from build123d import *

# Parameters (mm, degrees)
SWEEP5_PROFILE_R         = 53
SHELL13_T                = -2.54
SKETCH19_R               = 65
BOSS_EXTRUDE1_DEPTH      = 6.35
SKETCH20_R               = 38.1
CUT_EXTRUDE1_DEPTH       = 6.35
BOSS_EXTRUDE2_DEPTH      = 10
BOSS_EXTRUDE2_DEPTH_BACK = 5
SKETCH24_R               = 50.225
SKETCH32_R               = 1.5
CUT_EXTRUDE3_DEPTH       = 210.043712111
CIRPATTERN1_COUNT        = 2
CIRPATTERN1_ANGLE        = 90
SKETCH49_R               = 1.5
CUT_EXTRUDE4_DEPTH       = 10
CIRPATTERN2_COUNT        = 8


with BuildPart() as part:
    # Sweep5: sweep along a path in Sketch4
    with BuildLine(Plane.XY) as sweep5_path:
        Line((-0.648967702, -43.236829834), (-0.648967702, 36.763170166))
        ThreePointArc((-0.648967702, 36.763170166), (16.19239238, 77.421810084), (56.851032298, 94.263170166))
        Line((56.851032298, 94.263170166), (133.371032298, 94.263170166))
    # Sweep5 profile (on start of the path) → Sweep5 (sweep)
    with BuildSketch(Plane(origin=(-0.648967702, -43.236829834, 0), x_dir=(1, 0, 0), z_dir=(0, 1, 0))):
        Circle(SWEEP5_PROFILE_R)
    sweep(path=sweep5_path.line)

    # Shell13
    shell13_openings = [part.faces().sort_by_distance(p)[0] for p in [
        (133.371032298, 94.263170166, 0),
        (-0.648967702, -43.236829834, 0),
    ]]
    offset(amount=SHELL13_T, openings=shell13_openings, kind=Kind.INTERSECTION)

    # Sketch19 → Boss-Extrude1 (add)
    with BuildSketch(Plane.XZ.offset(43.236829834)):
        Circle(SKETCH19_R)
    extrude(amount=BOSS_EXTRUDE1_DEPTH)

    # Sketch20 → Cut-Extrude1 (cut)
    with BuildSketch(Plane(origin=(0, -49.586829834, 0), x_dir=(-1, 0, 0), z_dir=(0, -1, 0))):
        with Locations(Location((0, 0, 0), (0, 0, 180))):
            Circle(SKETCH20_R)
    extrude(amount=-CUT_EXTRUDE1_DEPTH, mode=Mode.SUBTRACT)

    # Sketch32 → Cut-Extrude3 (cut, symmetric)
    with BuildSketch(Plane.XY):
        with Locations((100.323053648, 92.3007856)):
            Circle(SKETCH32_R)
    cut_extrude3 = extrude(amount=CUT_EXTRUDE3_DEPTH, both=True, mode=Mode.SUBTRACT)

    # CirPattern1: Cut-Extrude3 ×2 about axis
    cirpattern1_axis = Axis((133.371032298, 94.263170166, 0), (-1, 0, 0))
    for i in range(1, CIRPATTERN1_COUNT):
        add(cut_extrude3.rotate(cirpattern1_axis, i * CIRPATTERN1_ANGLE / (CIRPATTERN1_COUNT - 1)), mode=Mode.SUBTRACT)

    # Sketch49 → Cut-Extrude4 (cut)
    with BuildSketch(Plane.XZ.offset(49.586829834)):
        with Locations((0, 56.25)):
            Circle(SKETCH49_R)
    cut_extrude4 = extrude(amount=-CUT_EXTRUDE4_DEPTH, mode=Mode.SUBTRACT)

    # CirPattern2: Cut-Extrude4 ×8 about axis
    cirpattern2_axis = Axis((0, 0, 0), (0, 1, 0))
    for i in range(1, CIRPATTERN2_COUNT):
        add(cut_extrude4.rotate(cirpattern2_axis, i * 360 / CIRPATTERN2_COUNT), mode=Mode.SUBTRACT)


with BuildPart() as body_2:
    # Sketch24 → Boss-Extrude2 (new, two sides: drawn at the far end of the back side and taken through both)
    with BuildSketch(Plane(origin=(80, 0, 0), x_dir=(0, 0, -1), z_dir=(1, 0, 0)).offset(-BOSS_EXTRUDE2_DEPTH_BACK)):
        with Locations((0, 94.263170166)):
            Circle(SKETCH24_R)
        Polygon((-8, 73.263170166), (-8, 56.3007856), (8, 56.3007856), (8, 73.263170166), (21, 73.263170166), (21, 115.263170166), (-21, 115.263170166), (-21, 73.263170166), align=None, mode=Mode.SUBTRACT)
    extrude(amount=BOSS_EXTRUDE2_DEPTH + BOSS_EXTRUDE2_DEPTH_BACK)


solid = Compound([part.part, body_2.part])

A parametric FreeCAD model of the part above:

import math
import FreeCAD as App
import Part
import Sketcher
from FreeCAD import Vector
Q = App.Units.Quantity


def faces_at(feature, points):
    """Names of the faces that lie closest to the given points."""
    faces = feature.Shape.Faces
    near = lambda p: min(range(len(faces)), key=lambda i: faces[i].distToShape(Part.Vertex(*p))[0])
    return sorted({f"Face{near(p) + 1}" for p in points})

doc = App.newDocument("Part")
params = doc.addObject("Spreadsheet::Sheet", "Params")
for row, (alias, value) in enumerate([
    ("sketch1_diameter", "106 mm"),
    ("sketch2_radius", "57.5 mm"),
    ("sketch2_height", "80 mm"),
    ("sketch2_width", "76.52 mm"),
    ("thickness_wall", "2.54 mm"),
    ("sketch3_diameter", "130 mm"),
    ("pad1_length", "6.35 mm"),
    ("sketch4_diameter", "76.2 mm"),
    ("pocket1_length", "6.35 mm"),
    ("sketch5_diameter", "3 mm"),
    ("pocket2_length", "420.087424 mm"),
    ("sketch6_diameter", "3 mm"),
    ("pocket3_length", "10 mm"),
    ("sketch7_diameter", "100.45 mm"),
    ("sketch7_width", "42 mm"),
    ("sketch7_height", "13 mm"),
    ("pad2_length", "10 mm"),
    ("pad2_length2", "5 mm"),
], start=1):
    params.set(f"A{row}", alias)
    params.set(f"B{row}", "=" + value)
    params.setAlias(f"B{row}", alias)

body = doc.addObject("PartDesign::Body", "Body")

# Sketch on XZ plane
sketch1 = body.newObject("Sketcher::SketchObject", "Sketch")
sketch1.AttachmentSupport = (doc.getObject("XZ_Plane"), [""])
sketch1.MapMode = "FlatFace"
sketch1.AttachmentOffset = App.Placement(Vector(0, 0, 43.23683), App.Rotation())
sketch1.addGeometry(Part.Circle(Vector(-1, 0, 0), Vector(0, 0, 1), 53), False)
sketch1.addConstraint(Sketcher.Constraint("PointOnObject", 0, 3, -1))
sketch1.addConstraint(Sketcher.Constraint("Diameter", 0, Q("106 mm")))
sketch1.addConstraint(Sketcher.Constraint("DistanceX", 0, 3, -1, 1, Q("0.648968 mm")))
sketch1.setExpression("Constraints[1]", "Params.sketch1_diameter")

# Sketch on XY plane
sketch2 = body.newObject("Sketcher::SketchObject", "Sketch001")
sketch2.AttachmentSupport = (doc.getObject("XY_Plane"), [""])
sketch2.MapMode = "FlatFace"
sketch2.addGeometry(Part.LineSegment(Vector(-1, -43, 0), Vector(-1, 37, 0)), False)
sketch2.addGeometry(Part.ArcOfCircle(Part.Circle(Vector(57, 37, 0), Vector(0, 0, 1), 58), math.radians(90), math.radians(180)), False)
sketch2.addGeometry(Part.LineSegment(Vector(57, 94, 0), Vector(133, 94, 0)), False)
sketch2.addConstraint(Sketcher.Constraint("Tangent", 0, 2, 1, 2))
sketch2.addConstraint(Sketcher.Constraint("Tangent", 1, 1, 2, 1))
sketch2.addConstraint(Sketcher.Constraint("Vertical", 0))
sketch2.addConstraint(Sketcher.Constraint("Horizontal", 2))
sketch2.addConstraint(Sketcher.Constraint("Radius", 1, Q("57.5 mm")))
sketch2.addConstraint(Sketcher.Constraint("DistanceY", 0, 1, 0, 2, Q("80 mm")))
sketch2.addConstraint(Sketcher.Constraint("DistanceX", 2, 1, 2, 2, Q("76.52 mm")))
sketch2.addConstraint(Sketcher.Constraint("DistanceY", -1, 1, 1, 3, Q("36.76317 mm")))
sketch2.addConstraint(Sketcher.Constraint("DistanceX", -1, 1, 1, 3, Q("56.851032 mm")))
sketch2.setExpression("Constraints[4]", "Params.sketch2_radius")
sketch2.setExpression("Constraints[5]", "Params.sketch2_height")
sketch2.setExpression("Constraints[6]", "Params.sketch2_width")
doc.recompute()

additivepipe = body.newObject("PartDesign::AdditivePipe", "AdditivePipe")
additivepipe.Profile = sketch1
additivepipe.Spine = (sketch2, ["Edge1", "Edge2", "Edge3"])
doc.recompute()

thickness = body.newObject("PartDesign::Thickness", "Thickness")
thickness.Base = (additivepipe, faces_at(additivepipe, [(133.371, 94.263, 0), (-0.649, -43.237, 0)]))
thickness.setExpression("Value", "Params.thickness_wall")
thickness.Reversed = True
thickness.Join = "Intersection"

# Sketch on XZ plane
sketch3 = body.newObject("Sketcher::SketchObject", "Sketch002")
sketch3.AttachmentSupport = (doc.getObject("XZ_Plane"), [""])
sketch3.MapMode = "FlatFace"
sketch3.AttachmentOffset = App.Placement(Vector(0, 0, 43.23683), App.Rotation())
sketch3.addGeometry(Part.Circle(Vector(0, 0, 0), Vector(0, 0, 1), 65), False)
sketch3.addConstraint(Sketcher.Constraint("Coincident", 0, 3, -1, 1))
sketch3.addConstraint(Sketcher.Constraint("Diameter", 0, Q("130 mm")))
sketch3.setExpression("Constraints[1]", "Params.sketch3_diameter")
pad1 = body.newObject("PartDesign::Pad", "Pad")
pad1.Profile = sketch3
pad1.setExpression("Length", "Params.pad1_length")

# Sketch on XZ plane
sketch4 = body.newObject("Sketcher::SketchObject", "Sketch003")
sketch4.AttachmentSupport = (doc.getObject("XZ_Plane"), [""])
sketch4.MapMode = "FlatFace"
sketch4.AttachmentOffset = App.Placement(Vector(0, 0, 49.58683), App.Rotation())
sketch4.addGeometry(Part.Circle(Vector(0, 0, 0), Vector(0, 0, 1), 38), False)
sketch4.addConstraint(Sketcher.Constraint("Coincident", 0, 3, -1, 1))
sketch4.addConstraint(Sketcher.Constraint("Diameter", 0, Q("76.2 mm")))
sketch4.setExpression("Constraints[1]", "Params.sketch4_diameter")
pocket1 = body.newObject("PartDesign::Pocket", "Pocket")
pocket1.Profile = sketch4
pocket1.setExpression("Length", "Params.pocket1_length")

# Sketch on XY plane
sketch5 = body.newObject("Sketcher::SketchObject", "Sketch004")
sketch5.AttachmentSupport = (doc.getObject("XY_Plane"), [""])
sketch5.MapMode = "FlatFace"
sketch5.addGeometry(Part.Circle(Vector(100.3, 92.3, 0), Vector(0, 0, 1), 1.5), False)
sketch5.addConstraint(Sketcher.Constraint("Diameter", 0, Q("3 mm")))
sketch5.addConstraint(Sketcher.Constraint("DistanceX", -1, 1, 0, 3, Q("100.323054 mm")))
sketch5.addConstraint(Sketcher.Constraint("DistanceY", -1, 1, 0, 3, Q("92.300786 mm")))
sketch5.setExpression("Constraints[0]", "Params.sketch5_diameter")
pocket2 = body.newObject("PartDesign::Pocket", "Pocket001")
pocket2.Profile = sketch5
pocket2.setExpression("Length", "Params.pocket2_length")
pocket2.Midplane = True
doc.recompute()

datumline = body.newObject("PartDesign::Line", "DatumLine")
datumline.Placement = App.Placement(Vector(0, 94.26317, 0), App.Rotation(Vector(0, 0, 1), Vector(-1, 0, 0)))
polarpattern = body.newObject("PartDesign::PolarPattern", "PolarPattern")
polarpattern.Originals = [pocket2]
polarpattern.Axis = (datumline, [""])
polarpattern.Angle = 90
polarpattern.Occurrences = 2
body.Tip = polarpattern

# Sketch on XZ plane
sketch6 = body.newObject("Sketcher::SketchObject", "Sketch005")
sketch6.AttachmentSupport = (doc.getObject("XZ_Plane"), [""])
sketch6.MapMode = "FlatFace"
sketch6.AttachmentOffset = App.Placement(Vector(0, 0, 49.58683), App.Rotation())
sketch6.addGeometry(Part.Circle(Vector(0, 56.2, 0), Vector(0, 0, 1), 1.5), False)
sketch6.addConstraint(Sketcher.Constraint("PointOnObject", 0, 3, -2))
sketch6.addConstraint(Sketcher.Constraint("Diameter", 0, Q("3 mm")))
sketch6.addConstraint(Sketcher.Constraint("DistanceY", -1, 1, 0, 3, Q("56.25 mm")))
sketch6.setExpression("Constraints[1]", "Params.sketch6_diameter")
pocket3 = body.newObject("PartDesign::Pocket", "Pocket002")
pocket3.Profile = sketch6
pocket3.setExpression("Length", "Params.pocket3_length")
doc.recompute()

polarpattern2 = body.newObject("PartDesign::PolarPattern", "PolarPattern001")
polarpattern2.Originals = [pocket3]
polarpattern2.Axis = (doc.getObject("Y_Axis"), [""])
polarpattern2.Angle = 360
polarpattern2.Occurrences = 8
body.Tip = polarpattern2
body2 = doc.addObject("PartDesign::Body", "Body001")

# Sketch on YZ plane
sketch7 = body2.newObject("Sketcher::SketchObject", "Sketch006")
sketch7.AttachmentSupport = (doc.getObject("YZ_Plane001"), [""])
sketch7.MapMode = "FlatFace"
sketch7.AttachmentOffset = App.Placement(Vector(0, 0, 80), App.Rotation())
sketch7.addGeometry(Part.Circle(Vector(94, 0, 0), Vector(0, 0, 1), 50), False)
sketch7.addGeometry(Part.LineSegment(Vector(56, 8, 0), Vector(73, 8, 0)), False)
sketch7.addGeometry(Part.LineSegment(Vector(73, 8, 0), Vector(73, 21, 0)), False)
sketch7.addGeometry(Part.LineSegment(Vector(73, 21, 0), Vector(115, 21, 0)), False)
sketch7.addGeometry(Part.LineSegment(Vector(115, 21, 0), Vector(115, -21, 0)), False)
sketch7.addGeometry(Part.LineSegment(Vector(115, -21, 0), Vector(73, -21, 0)), False)
sketch7.addGeometry(Part.LineSegment(Vector(73, -21, 0), Vector(73, -8, 0)), False)
sketch7.addGeometry(Part.LineSegment(Vector(73, -8, 0), Vector(56, -8, 0)), False)
sketch7.addGeometry(Part.LineSegment(Vector(56, -8, 0), Vector(56, 8, 0)), False)
sketch7.addConstraint(Sketcher.Constraint("Coincident", 1, 2, 2, 1))
sketch7.addConstraint(Sketcher.Constraint("Coincident", 2, 2, 3, 1))
sketch7.addConstraint(Sketcher.Constraint("Coincident", 3, 2, 4, 1))
sketch7.addConstraint(Sketcher.Constraint("Coincident", 4, 2, 5, 1))
sketch7.addConstraint(Sketcher.Constraint("Coincident", 5, 2, 6, 1))
sketch7.addConstraint(Sketcher.Constraint("Coincident", 6, 2, 7, 1))
sketch7.addConstraint(Sketcher.Constraint("Coincident", 7, 2, 8, 1))
sketch7.addConstraint(Sketcher.Constraint("Coincident", 8, 2, 1, 1))
sketch7.addConstraint(Sketcher.Constraint("Horizontal", 1))
sketch7.addConstraint(Sketcher.Constraint("Vertical", 2))
sketch7.addConstraint(Sketcher.Constraint("Horizontal", 3))
sketch7.addConstraint(Sketcher.Constraint("Vertical", 4))
sketch7.addConstraint(Sketcher.Constraint("Horizontal", 5))
sketch7.addConstraint(Sketcher.Constraint("Vertical", 6))
sketch7.addConstraint(Sketcher.Constraint("Horizontal", 7))
sketch7.addConstraint(Sketcher.Constraint("Vertical", 8))
sketch7.addConstraint(Sketcher.Constraint("Symmetric", 2, 2, 5, 2, -1))
sketch7.addConstraint(Sketcher.Constraint("PointOnObject", 0, 3, -1))
sketch7.addConstraint(Sketcher.Constraint("Equal", 5, 4))
sketch7.addConstraint(Sketcher.Constraint("Equal", 2, 6))
sketch7.addConstraint(Sketcher.Constraint("Diameter", 0, Q("100.45 mm")))
sketch7.addConstraint(Sketcher.Constraint("DistanceX", 3, 1, 3, 2, Q("42 mm")))
sketch7.addConstraint(Sketcher.Constraint("DistanceY", 2, 1, 2, 2, Q("13 mm")))
sketch7.addConstraint(Sketcher.Constraint("DistanceX", 1, 2, 0, 3, Q("21 mm")))
sketch7.addConstraint(Sketcher.Constraint("DistanceX", 1, 1, 1, 2, Q("16.962385 mm")))
sketch7.addConstraint(Sketcher.Constraint("DistanceX", -1, 1, 0, 3, Q("94.26317 mm")))
sketch7.setExpression("Constraints[20]", "Params.sketch7_diameter")
sketch7.setExpression("Constraints[21]", "Params.sketch7_width")
sketch7.setExpression("Constraints[22]", "Params.sketch7_height")
pad2 = body2.newObject("PartDesign::Pad", "Pad001")
pad2.Profile = sketch7
pad2.Type = "TwoLengths"
pad2.setExpression("Length", "Params.pad2_length")
pad2.setExpression("Length2", "Params.pad2_length2")

doc.recompute()
